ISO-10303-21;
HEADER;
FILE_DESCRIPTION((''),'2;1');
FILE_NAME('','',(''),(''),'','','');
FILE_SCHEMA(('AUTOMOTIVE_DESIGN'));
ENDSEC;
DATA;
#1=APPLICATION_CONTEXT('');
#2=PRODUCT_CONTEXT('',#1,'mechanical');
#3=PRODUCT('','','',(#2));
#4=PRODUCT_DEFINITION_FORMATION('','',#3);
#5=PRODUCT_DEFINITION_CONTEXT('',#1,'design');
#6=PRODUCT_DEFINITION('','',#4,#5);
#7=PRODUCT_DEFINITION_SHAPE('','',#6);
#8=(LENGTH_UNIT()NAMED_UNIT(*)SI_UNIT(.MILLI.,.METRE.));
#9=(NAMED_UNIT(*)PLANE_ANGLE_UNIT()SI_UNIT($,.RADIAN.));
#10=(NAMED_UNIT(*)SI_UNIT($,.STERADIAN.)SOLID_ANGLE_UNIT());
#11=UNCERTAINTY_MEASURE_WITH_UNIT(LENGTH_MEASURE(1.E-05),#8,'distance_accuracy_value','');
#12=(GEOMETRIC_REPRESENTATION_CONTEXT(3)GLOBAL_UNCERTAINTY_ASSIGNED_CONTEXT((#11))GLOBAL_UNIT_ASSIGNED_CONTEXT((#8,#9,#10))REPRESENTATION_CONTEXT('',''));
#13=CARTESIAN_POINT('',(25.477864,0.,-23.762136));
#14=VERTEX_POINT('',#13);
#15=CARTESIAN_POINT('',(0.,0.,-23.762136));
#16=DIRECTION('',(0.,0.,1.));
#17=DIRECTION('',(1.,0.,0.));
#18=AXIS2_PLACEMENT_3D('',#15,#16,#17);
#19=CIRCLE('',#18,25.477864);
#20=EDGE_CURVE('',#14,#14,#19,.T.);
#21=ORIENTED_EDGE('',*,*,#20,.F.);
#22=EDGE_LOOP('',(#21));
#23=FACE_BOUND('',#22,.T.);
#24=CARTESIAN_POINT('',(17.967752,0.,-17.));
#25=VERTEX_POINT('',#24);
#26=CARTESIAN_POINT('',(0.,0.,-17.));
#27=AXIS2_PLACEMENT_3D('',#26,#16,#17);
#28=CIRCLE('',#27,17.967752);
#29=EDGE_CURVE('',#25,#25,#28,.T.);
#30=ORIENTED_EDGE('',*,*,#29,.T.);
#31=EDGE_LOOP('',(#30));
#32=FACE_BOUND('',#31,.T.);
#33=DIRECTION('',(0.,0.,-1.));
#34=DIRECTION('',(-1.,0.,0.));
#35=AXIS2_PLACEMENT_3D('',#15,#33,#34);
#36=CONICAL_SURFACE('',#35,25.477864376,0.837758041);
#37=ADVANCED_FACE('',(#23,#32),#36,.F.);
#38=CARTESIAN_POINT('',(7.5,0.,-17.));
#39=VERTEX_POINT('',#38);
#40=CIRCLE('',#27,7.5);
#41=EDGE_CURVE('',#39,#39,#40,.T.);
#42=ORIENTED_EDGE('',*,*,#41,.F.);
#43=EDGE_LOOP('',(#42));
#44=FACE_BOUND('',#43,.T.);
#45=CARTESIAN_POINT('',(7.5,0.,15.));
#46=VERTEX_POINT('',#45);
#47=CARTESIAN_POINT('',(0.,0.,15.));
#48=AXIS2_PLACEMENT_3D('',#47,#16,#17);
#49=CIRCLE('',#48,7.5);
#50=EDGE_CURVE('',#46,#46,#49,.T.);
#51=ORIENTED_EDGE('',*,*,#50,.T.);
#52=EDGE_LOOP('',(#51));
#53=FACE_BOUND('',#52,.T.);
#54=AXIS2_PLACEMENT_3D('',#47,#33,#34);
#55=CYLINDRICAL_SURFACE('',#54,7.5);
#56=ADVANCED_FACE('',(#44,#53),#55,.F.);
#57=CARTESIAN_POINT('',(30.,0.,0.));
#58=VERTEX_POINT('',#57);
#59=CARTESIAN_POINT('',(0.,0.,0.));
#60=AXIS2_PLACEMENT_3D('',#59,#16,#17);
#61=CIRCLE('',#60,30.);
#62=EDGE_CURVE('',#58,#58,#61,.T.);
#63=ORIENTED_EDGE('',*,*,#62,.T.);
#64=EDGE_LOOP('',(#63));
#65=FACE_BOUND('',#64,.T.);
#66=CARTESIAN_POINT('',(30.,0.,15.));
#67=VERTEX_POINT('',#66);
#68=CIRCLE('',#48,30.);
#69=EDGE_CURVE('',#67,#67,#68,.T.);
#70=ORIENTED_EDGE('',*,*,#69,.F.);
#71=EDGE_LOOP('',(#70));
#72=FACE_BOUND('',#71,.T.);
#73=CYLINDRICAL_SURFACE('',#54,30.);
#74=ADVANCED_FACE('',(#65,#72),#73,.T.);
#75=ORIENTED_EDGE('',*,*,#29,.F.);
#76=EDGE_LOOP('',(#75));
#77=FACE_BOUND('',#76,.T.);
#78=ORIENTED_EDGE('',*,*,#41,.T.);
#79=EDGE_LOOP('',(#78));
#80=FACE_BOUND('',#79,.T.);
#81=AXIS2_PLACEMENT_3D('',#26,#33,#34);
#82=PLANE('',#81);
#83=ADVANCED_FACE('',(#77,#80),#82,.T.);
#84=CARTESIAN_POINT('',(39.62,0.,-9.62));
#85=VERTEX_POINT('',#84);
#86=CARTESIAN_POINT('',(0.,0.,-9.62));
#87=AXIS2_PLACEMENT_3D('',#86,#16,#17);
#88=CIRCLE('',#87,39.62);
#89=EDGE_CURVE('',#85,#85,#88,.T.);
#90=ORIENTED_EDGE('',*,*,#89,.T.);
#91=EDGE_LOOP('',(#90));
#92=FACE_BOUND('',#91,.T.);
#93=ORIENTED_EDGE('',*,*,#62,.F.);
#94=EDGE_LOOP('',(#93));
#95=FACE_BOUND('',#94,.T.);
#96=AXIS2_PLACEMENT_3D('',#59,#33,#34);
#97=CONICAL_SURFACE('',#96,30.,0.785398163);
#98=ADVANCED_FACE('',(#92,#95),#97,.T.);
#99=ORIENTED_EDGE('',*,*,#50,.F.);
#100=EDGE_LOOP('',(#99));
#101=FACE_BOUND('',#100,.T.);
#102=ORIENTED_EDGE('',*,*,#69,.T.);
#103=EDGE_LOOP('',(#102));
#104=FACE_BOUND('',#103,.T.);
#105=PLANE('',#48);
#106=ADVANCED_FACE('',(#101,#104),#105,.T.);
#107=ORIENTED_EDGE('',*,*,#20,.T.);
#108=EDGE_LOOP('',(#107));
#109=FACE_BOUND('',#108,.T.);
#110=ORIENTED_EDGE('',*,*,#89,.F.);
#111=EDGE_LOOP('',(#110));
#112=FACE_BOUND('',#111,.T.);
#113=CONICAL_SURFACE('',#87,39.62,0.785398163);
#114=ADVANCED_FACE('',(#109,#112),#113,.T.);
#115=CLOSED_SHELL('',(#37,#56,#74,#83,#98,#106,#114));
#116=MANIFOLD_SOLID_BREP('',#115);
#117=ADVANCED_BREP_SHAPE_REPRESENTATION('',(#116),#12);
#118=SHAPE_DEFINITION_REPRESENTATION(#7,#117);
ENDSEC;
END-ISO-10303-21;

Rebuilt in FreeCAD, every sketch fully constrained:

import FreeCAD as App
import Part
import Sketcher

V = App.Vector
Q = App.Units.Quantity

doc = App.newDocument("Part")
body = doc.addObject("PartDesign::Body", "Body")

sketch1 = body.newObject("Sketcher::SketchObject", "Sketch")
sketch1.AttachmentSupport = (doc.getObject("XY_Plane"), [""])
sketch1.MapMode = "FlatFace"
sketch1.addGeometry(Part.Circle(V(0, 0, 0), V(0, 0, 1), 30), False)
sketch1.addGeometry(Part.Circle(V(0, 0, 0), V(0, 0, 1), 8), False)
sketch1.addConstraint(Sketcher.Constraint("Coincident", 0, 3, -1, 1))
sketch1.addConstraint(Sketcher.Constraint("Coincident", 1, 3, -1, 1))
sketch1.addConstraint(Sketcher.Constraint("Diameter", 0, Q("60 mm")))
sketch1.addConstraint(Sketcher.Constraint("Diameter", 1, Q("15 mm")))
pad1 = body.newObject("PartDesign::Pad", "Pad")
pad1.Profile = sketch1
pad1.Length = 15

sketch2 = body.newObject("Sketcher::SketchObject", "Sketch001")
sketch2.AttachmentSupport = (doc.getObject("XZ_Plane"), [""])
sketch2.MapMode = "FlatFace"
sketch2.addGeometry(Part.LineSegment(V(8, 0, 0), V(30, 0, 0)), False)
sketch2.addGeometry(Part.LineSegment(V(30, 0, 0), V(40, -10, 0)), False)
sketch2.addGeometry(Part.LineSegment(V(40, -10, 0), V(25, -24, 0)), False)
sketch2.addGeometry(Part.LineSegment(V(25, -24, 0), V(18, -17, 0)), False)
sketch2.addGeometry(Part.LineSegment(V(18, -17, 0), V(8, -17, 0)), False)
sketch2.addGeometry(Part.LineSegment(V(8, -17, 0), V(8, 0, 0)), False)
sketch2.addConstraint(Sketcher.Constraint("Coincident", 0, 2, 1, 1))
sketch2.addConstraint(Sketcher.Constraint("Coincident", 1, 2, 2, 1))
sketch2.addConstraint(Sketcher.Constraint("Coincident", 2, 2, 3, 1))
sketch2.addConstraint(Sketcher.Constraint("Coincident", 3, 2, 4, 1))
sketch2.addConstraint(Sketcher.Constraint("Coincident", 4, 2, 5, 1))
sketch2.addConstraint(Sketcher.Constraint("Coincident", 5, 2, 0, 1))
sketch2.addConstraint(Sketcher.Constraint("Horizontal", 0))
sketch2.addConstraint(Sketcher.Constraint("Horizontal", 4))
sketch2.addConstraint(Sketcher.Constraint("Vertical", 5))
sketch2.addConstraint(Sketcher.Constraint("PointOnObject", 0, 2, -1))
sketch2.addConstraint(Sketcher.Constraint("Perpendicular", 1, 2))
sketch2.addConstraint(Sketcher.Constraint("DistanceY", 5, 1, 5, 2, Q("17 mm")))
sketch2.addConstraint(Sketcher.Constraint("Angle", 1, Q("-45 deg")))
sketch2.addConstraint(Sketcher.Constraint("Angle", 3, Q("138 deg")))
sketch2.addConstraint(Sketcher.Constraint("Distance", 2, Q("20 mm")))
sketch2.addConstraint(Sketcher.Constraint("DistanceX", 0, 1, 0, 2, Q("22.5 mm")))
sketch2.addConstraint(Sketcher.Constraint("DistanceX", -1, 1, 0, 2, Q("30 mm")))
sketch2.addConstraint(Sketcher.Constraint("DistanceX", -1, 1, 1, 2, Q("39.62 mm")))
revolution = body.newObject("PartDesign::Revolution", "Revolution")
revolution.Profile = sketch2
revolution.ReferenceAxis = (sketch2, ["V_Axis"])
revolution.Angle = 360

doc.recompute()
